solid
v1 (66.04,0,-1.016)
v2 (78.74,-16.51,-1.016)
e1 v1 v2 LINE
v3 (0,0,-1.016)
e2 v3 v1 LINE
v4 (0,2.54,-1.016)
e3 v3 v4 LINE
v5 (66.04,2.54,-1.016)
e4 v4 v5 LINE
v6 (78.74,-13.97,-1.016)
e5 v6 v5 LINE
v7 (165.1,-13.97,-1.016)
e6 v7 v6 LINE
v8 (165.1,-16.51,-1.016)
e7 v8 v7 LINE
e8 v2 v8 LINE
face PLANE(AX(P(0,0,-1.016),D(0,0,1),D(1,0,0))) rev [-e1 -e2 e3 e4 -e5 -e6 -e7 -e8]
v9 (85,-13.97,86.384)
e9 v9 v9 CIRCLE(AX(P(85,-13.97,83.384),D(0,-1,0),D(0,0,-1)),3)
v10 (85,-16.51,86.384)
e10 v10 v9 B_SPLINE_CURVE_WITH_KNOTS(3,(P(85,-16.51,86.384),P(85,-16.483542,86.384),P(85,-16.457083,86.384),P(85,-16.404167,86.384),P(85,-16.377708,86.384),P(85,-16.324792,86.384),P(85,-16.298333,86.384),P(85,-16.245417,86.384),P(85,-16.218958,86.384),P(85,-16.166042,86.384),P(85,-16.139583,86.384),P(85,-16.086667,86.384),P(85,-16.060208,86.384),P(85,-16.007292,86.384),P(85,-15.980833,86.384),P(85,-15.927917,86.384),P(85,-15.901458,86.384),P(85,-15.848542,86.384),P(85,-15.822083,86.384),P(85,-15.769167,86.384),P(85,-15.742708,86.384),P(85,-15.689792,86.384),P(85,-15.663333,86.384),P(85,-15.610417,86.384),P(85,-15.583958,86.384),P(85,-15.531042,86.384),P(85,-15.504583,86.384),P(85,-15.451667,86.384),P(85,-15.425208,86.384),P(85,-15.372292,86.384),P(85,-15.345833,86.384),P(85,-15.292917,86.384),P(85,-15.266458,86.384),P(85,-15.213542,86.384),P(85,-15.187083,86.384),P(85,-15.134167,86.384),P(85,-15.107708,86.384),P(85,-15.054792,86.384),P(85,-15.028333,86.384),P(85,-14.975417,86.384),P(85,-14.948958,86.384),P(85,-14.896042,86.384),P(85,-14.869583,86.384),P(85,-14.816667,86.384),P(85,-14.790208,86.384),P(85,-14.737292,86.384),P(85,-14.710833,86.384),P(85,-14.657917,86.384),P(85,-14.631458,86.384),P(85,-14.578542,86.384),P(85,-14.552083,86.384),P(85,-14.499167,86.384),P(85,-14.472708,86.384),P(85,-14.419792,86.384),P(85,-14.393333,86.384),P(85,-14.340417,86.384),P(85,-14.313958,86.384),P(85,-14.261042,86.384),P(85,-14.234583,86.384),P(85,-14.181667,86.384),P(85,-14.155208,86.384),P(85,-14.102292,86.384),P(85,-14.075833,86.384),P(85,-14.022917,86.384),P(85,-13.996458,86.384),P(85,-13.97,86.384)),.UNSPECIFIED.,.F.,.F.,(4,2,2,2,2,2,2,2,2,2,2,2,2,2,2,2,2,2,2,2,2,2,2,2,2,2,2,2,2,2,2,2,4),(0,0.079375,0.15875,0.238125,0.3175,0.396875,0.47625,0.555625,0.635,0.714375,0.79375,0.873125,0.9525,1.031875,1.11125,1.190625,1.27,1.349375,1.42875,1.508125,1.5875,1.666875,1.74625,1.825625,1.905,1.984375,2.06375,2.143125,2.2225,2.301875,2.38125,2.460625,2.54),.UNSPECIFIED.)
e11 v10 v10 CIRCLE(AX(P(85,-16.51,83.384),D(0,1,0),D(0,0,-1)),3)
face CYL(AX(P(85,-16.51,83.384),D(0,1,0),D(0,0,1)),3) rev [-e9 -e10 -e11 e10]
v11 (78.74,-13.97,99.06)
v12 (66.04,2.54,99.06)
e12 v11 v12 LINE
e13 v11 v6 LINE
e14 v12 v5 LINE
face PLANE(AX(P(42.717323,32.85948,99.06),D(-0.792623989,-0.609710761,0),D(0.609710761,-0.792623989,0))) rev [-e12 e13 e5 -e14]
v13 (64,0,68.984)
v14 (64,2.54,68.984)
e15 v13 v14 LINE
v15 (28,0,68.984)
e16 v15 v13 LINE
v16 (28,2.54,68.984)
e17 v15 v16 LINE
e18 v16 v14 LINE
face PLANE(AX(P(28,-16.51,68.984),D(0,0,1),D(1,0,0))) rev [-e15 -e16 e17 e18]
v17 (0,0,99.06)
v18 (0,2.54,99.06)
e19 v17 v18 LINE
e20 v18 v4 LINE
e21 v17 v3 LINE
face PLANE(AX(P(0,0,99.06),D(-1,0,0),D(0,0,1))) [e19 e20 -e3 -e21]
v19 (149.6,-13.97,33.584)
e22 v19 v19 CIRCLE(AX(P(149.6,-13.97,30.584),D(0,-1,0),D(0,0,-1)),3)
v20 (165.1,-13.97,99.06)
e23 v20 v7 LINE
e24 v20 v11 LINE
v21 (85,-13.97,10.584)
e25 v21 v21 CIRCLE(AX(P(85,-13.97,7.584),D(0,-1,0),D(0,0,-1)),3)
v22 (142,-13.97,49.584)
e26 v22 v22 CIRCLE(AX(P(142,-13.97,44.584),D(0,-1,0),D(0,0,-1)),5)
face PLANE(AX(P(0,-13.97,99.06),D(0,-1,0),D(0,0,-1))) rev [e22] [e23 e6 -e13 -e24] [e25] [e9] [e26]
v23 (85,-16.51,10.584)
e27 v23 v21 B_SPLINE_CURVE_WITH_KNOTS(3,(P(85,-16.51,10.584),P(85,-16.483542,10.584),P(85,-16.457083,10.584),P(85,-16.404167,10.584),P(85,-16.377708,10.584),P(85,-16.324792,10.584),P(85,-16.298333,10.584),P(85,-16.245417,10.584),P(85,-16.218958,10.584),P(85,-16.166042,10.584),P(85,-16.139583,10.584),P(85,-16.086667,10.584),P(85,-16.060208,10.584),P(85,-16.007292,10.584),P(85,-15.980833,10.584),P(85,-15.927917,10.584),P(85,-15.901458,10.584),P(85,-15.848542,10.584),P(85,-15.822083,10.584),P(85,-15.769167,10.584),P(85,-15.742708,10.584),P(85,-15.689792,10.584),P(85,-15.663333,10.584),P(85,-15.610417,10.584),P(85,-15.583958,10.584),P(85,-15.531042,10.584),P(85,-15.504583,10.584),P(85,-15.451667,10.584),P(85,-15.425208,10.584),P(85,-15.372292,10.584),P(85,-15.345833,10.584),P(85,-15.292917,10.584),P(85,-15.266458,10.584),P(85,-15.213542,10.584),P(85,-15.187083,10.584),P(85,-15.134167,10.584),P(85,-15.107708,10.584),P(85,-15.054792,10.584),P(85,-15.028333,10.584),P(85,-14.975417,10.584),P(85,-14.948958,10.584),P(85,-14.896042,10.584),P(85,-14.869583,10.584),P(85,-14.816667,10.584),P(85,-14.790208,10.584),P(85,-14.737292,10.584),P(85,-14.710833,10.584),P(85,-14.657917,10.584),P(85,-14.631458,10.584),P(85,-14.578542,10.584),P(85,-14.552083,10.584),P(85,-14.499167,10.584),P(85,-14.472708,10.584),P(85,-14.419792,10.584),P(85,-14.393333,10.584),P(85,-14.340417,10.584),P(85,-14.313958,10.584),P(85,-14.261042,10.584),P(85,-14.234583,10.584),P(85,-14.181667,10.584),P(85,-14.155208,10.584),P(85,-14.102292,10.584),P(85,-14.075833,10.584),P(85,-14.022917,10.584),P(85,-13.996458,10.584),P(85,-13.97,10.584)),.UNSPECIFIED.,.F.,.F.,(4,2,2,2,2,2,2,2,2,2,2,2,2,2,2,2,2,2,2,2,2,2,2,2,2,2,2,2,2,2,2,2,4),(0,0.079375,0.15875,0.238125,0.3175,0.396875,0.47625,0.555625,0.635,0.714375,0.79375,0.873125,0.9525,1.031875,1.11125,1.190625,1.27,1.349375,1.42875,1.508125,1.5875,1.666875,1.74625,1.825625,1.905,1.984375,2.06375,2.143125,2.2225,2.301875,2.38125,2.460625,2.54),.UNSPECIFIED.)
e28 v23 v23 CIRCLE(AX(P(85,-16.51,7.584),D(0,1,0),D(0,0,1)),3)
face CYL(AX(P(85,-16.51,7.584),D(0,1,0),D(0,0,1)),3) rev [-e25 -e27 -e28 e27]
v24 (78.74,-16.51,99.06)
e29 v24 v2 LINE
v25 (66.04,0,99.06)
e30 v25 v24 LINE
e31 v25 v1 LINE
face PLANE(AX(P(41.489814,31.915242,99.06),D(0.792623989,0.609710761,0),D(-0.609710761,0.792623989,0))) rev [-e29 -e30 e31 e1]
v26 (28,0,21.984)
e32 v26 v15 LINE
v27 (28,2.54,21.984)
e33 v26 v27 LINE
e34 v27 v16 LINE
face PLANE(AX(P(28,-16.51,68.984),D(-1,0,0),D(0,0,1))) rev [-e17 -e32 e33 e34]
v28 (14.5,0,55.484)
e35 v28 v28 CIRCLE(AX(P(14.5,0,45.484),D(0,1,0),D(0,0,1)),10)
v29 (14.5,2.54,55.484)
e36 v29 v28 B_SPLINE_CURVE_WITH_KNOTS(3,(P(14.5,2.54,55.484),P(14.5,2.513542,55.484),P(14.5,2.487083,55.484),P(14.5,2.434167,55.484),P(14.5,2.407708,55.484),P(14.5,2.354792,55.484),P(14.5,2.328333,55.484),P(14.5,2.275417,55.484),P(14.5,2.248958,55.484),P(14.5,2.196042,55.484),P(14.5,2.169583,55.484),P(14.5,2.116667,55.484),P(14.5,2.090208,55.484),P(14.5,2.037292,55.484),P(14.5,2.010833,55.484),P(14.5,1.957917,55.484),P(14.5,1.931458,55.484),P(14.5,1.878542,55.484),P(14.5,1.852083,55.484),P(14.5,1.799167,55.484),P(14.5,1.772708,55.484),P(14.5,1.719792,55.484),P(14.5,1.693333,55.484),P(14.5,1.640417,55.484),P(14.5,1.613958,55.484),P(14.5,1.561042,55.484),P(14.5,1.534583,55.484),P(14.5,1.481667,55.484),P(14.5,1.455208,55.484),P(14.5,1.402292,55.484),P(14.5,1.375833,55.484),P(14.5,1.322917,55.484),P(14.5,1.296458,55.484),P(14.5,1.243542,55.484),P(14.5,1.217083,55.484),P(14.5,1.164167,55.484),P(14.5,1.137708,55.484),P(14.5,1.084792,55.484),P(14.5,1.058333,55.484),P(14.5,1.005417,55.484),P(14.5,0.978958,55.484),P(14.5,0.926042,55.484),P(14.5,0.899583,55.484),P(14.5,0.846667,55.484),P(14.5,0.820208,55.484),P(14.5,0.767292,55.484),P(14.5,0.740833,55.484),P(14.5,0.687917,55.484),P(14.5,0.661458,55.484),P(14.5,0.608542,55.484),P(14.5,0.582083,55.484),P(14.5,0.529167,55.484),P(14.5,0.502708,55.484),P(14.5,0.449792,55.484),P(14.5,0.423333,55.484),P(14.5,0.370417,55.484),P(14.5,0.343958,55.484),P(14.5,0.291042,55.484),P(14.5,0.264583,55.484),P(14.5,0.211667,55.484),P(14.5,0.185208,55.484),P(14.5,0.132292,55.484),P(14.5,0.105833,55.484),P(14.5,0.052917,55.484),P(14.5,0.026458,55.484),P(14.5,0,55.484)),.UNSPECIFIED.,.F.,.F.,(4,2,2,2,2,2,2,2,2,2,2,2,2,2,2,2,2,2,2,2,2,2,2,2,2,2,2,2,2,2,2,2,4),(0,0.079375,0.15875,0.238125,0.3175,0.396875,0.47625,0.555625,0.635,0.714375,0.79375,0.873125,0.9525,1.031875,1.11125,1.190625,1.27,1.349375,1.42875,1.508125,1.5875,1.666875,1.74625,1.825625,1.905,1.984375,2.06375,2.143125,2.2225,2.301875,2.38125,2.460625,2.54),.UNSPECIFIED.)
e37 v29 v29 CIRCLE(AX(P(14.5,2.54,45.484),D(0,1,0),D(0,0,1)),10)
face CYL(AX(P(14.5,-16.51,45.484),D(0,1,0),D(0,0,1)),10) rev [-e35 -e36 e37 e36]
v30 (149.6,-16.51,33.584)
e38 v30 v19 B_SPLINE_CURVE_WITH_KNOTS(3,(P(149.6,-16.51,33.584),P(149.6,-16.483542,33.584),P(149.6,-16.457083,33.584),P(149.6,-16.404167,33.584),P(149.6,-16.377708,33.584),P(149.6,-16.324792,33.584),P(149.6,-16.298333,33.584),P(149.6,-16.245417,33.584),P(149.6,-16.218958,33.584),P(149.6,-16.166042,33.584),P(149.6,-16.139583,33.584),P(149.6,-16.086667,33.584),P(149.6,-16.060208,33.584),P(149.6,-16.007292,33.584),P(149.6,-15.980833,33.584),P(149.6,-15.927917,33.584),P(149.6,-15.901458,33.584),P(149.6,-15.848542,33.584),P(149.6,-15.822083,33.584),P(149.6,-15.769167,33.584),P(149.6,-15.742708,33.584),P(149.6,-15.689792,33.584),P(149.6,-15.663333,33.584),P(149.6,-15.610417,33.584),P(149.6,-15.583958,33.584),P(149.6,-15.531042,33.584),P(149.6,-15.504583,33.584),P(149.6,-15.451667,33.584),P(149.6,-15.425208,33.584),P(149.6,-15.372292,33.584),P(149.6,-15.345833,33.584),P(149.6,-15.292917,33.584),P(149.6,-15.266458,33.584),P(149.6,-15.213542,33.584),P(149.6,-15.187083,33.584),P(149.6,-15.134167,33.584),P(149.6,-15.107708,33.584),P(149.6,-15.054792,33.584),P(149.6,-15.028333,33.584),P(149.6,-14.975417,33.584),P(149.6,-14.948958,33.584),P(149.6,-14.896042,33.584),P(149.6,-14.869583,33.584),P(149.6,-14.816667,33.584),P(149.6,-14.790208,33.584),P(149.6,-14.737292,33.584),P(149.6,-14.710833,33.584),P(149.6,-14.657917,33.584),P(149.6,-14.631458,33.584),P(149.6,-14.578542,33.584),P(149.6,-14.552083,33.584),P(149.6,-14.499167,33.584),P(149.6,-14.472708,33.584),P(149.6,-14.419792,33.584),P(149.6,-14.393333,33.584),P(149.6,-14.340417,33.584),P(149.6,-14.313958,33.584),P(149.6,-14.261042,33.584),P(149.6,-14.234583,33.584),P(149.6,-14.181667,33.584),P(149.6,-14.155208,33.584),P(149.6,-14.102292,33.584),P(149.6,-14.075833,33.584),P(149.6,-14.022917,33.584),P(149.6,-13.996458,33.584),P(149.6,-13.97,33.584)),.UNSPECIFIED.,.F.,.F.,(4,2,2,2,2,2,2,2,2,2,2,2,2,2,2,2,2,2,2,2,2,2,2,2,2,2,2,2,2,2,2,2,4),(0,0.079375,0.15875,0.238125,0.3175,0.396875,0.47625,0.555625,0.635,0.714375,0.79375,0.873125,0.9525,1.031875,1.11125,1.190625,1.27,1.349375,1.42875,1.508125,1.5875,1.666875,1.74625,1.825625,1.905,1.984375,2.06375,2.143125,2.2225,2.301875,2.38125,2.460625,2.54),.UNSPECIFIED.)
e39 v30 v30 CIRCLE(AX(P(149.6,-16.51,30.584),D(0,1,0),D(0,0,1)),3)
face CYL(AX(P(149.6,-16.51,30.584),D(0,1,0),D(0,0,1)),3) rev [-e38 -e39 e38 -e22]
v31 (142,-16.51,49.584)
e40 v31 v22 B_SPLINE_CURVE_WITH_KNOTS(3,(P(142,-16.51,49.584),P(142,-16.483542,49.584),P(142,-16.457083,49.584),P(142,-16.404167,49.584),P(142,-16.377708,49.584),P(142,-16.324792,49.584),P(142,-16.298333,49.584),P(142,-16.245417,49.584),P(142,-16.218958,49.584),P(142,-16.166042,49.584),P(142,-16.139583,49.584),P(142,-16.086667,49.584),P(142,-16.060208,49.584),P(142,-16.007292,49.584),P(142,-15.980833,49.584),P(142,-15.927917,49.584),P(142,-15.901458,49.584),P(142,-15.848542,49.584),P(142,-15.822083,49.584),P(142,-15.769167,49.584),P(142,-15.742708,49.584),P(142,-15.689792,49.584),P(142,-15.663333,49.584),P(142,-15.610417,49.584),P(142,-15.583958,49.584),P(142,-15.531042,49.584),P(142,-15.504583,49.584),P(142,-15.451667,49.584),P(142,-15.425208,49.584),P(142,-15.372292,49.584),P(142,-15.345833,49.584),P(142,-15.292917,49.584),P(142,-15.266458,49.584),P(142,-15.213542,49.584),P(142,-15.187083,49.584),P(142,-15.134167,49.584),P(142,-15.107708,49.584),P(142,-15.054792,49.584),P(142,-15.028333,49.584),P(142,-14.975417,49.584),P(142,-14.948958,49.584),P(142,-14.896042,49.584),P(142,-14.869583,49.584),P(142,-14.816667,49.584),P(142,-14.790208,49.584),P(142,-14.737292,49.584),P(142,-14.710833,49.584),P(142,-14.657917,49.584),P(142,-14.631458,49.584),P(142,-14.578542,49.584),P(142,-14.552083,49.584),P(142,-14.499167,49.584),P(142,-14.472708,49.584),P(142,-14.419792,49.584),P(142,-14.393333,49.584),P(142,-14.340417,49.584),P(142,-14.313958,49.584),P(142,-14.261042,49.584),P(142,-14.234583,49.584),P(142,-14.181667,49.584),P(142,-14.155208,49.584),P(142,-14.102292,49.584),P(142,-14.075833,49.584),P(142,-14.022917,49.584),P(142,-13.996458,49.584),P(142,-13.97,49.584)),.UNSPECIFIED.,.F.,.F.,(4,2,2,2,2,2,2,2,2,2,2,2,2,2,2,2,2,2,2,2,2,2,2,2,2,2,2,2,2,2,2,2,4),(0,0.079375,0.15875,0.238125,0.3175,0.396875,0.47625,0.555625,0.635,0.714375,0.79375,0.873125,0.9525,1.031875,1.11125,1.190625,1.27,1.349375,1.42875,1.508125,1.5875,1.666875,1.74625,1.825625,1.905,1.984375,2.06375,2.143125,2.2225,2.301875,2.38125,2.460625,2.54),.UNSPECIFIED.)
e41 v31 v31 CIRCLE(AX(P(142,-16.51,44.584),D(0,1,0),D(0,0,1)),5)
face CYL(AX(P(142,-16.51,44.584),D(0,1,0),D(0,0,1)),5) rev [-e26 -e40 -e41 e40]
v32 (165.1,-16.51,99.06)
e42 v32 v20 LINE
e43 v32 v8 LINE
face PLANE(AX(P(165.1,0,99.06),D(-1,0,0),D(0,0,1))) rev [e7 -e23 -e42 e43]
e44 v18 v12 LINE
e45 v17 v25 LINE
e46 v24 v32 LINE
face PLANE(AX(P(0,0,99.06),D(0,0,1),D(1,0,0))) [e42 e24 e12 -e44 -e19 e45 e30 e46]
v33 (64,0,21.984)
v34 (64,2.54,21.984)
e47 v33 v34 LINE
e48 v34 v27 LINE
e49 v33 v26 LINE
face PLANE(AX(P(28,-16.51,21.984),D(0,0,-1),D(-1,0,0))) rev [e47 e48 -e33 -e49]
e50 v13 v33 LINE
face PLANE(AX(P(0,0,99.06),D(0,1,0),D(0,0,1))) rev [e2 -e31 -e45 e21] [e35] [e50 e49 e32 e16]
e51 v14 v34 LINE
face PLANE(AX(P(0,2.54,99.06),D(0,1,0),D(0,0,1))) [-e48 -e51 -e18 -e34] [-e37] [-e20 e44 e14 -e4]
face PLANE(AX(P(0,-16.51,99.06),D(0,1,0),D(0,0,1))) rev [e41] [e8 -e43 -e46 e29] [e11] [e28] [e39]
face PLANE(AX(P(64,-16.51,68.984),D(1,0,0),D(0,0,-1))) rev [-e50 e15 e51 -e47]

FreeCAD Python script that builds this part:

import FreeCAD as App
import Part
import Sketcher


def add_polygon(sketch, points):
    """Adds a closed chain of lines whose ends are joined by coincident constraints."""
    first, n = sketch.GeometryCount, len(points)
    for a, b in zip(points, points[1:] + points[:1]):
        sketch.addGeometry(Part.LineSegment(App.Vector(*a, 0), App.Vector(*b, 0)), False)
    for i in range(n):
        sketch.addConstraint(Sketcher.Constraint("Coincident", first + i, 2, first + (i + 1) % n, 1))

doc = App.newDocument("Part")
params = doc.addObject("Spreadsheet::Sheet", "Params")
for row, (alias, value) in enumerate([
    ("sketch1_width", "86.36 mm"),
    ("sketch1_width2", "66.04 mm"),
    ("sketch1_height", "2.54 mm"),
    ("pad1_length", "99.06 mm"),
    ("pad1_length2", "1.016 mm"),
    ("sketch2_diameter", "6 mm"),
    ("sketch2_diameter2", "20 mm"),
    ("sketch2_diameter3", "10 mm"),
    ("sketch2_width", "36 mm"),
    ("sketch2_height", "47 mm"),
], start=1):
    params.set(f"A{row}", alias)
    params.set(f"B{row}", "=" + value)
    params.setAlias(f"B{row}", alias)

body = doc.addObject("PartDesign::Body", "Body")

# Sketch on XY plane
sketch1 = body.newObject("Sketcher::SketchObject", "Sketch")
sketch1.AttachmentSupport = (doc.getObject("XY_Plane"), [""])
sketch1.MapMode = "FlatFace"
add_polygon(sketch1, [(165.1, -14), (78.7, -14), (66, 2.5), (0, 2.5), (0, 0), (66, 0), (78.7, -16.5), (165.1, -16.5)])  # lines 0-7
sketch1.addConstraint([
    Sketcher.Constraint("Horizontal", 0),
    Sketcher.Constraint("Horizontal", 2),
    Sketcher.Constraint("Vertical", 3),
    Sketcher.Constraint("Horizontal", 4),
    Sketcher.Constraint("Horizontal", 6),
    Sketcher.Constraint("Vertical", 7),
    Sketcher.Constraint("Coincident", 3, 2, -1, 1),
    Sketcher.Constraint("Parallel", 1, 5),
    Sketcher.Constraint("Vertical", 1, 2, 4, 2),
    Sketcher.Constraint("Vertical", 0, 2, 5, 2),
    Sketcher.Constraint("DistanceX", 0, 2, 0, 1, 86.36),
    Sketcher.Constraint("DistanceX", 2, 2, 2, 1, 66.04),
    Sketcher.Constraint("DistanceY", 3, 2, 3, 1, 2.54),
    Sketcher.Constraint("DistanceX", -1, 1, 6, 2, 165.1),
    Sketcher.Constraint("DistanceY", 0, 2, -1, 1, 13.97),
])
sketch1.setExpression("Constraints[18]", "Params.sketch1_width")
sketch1.setExpression("Constraints[19]", "Params.sketch1_width2")
sketch1.setExpression("Constraints[20]", "Params.sketch1_height")
pad1 = body.newObject("PartDesign::Pad", "Pad")
pad1.Profile = sketch1
pad1.Type = "TwoLengths"
pad1.setExpression("Length", "Params.pad1_length")
pad1.setExpression("Length2", "Params.pad1_length2")

# Sketch on XZ plane
sketch2 = body.newObject("Sketcher::SketchObject", "Sketch001")
sketch2.AttachmentSupport = (doc.getObject("XZ_Plane"), [""])
sketch2.MapMode = "FlatFace"
sketch2.AttachmentOffset = App.Placement(App.Vector(0, 0, -2.54), App.Rotation())
sketch2.addGeometry(Part.Circle(App.Vector(85, 7.6, 0), App.Vector(0, 0, 1), 3), False)  # 0
sketch2.addGeometry(Part.Circle(App.Vector(85, 83.4, 0), App.Vector(0, 0, 1), 3), False)  # 1
sketch2.addGeometry(Part.Circle(App.Vector(149.6, 30.6, 0), App.Vector(0, 0, 1), 3), False)  # 2
sketch2.addGeometry(Part.Circle(App.Vector(14.5, 45.5, 0), App.Vector(0, 0, 1), 10), False)  # 3
sketch2.addGeometry(Part.Circle(App.Vector(142, 44.6, 0), App.Vector(0, 0, 1), 5), False)  # 4
add_polygon(sketch2, [(28, 22), (28, 69), (64, 69), (64, 22)])  # lines 5-8
sketch2.addConstraint([
    Sketcher.Constraint("Vertical", 5),
    Sketcher.Constraint("Horizontal", 6),
    Sketcher.Constraint("Vertical", 7),
    Sketcher.Constraint("Horizontal", 8),
    Sketcher.Constraint("Equal", 0, 1),
    Sketcher.Constraint("Equal", 1, 2),
    Sketcher.Constraint("Vertical", 0, 3, 1, 3),
    Sketcher.Constraint("Diameter", 0, 6.0),
    Sketcher.Constraint("Diameter", 3, 20.0),
    Sketcher.Constraint("Diameter", 4, 10.0),
    Sketcher.Constraint("DistanceX", 6, 1, 6, 2, 36.0),
    Sketcher.Constraint("DistanceY", 5, 1, 5, 2, 47.0),
    Sketcher.Constraint("DistanceX", -1, 1, 0, 3, 85.0),
    Sketcher.Constraint("DistanceX", -1, 1, 4, 3, 142.0),
    Sketcher.Constraint("DistanceX", -1, 1, 5, 2, 28.0),
    Sketcher.Constraint("DistanceY", 0, 3, 2, 3, 23.0),
    Sketcher.Constraint("DistanceY", 2, 3, 4, 3, 14.0),
    Sketcher.Constraint("DistanceX", -1, 1, 2, 3, 149.6),
    Sketcher.Constraint("DistanceX", -1, 1, 3, 3, 14.5),
    Sketcher.Constraint("DistanceY", 0, 3, 1, 3, 75.8),
    Sketcher.Constraint("DistanceY", 0, 3, 3, 3, 37.9),
    Sketcher.Constraint("DistanceY", 3, 3, 5, 2, 23.5),
    Sketcher.Constraint("DistanceY", -1, 1, 0, 3, 7.584),
])
sketch2.setExpression("Constraints[11]", "Params.sketch2_diameter")
sketch2.setExpression("Constraints[12]", "Params.sketch2_diameter2")
sketch2.setExpression("Constraints[13]", "Params.sketch2_diameter3")
sketch2.setExpression("Constraints[14]", "Params.sketch2_width")
sketch2.setExpression("Constraints[15]", "Params.sketch2_height")
pocket1 = body.newObject("PartDesign::Pocket", "Pocket")
pocket1.Profile = sketch2
pocket1.Type = "ThroughAll"
pocket1.Reversed = True

doc.recompute()
